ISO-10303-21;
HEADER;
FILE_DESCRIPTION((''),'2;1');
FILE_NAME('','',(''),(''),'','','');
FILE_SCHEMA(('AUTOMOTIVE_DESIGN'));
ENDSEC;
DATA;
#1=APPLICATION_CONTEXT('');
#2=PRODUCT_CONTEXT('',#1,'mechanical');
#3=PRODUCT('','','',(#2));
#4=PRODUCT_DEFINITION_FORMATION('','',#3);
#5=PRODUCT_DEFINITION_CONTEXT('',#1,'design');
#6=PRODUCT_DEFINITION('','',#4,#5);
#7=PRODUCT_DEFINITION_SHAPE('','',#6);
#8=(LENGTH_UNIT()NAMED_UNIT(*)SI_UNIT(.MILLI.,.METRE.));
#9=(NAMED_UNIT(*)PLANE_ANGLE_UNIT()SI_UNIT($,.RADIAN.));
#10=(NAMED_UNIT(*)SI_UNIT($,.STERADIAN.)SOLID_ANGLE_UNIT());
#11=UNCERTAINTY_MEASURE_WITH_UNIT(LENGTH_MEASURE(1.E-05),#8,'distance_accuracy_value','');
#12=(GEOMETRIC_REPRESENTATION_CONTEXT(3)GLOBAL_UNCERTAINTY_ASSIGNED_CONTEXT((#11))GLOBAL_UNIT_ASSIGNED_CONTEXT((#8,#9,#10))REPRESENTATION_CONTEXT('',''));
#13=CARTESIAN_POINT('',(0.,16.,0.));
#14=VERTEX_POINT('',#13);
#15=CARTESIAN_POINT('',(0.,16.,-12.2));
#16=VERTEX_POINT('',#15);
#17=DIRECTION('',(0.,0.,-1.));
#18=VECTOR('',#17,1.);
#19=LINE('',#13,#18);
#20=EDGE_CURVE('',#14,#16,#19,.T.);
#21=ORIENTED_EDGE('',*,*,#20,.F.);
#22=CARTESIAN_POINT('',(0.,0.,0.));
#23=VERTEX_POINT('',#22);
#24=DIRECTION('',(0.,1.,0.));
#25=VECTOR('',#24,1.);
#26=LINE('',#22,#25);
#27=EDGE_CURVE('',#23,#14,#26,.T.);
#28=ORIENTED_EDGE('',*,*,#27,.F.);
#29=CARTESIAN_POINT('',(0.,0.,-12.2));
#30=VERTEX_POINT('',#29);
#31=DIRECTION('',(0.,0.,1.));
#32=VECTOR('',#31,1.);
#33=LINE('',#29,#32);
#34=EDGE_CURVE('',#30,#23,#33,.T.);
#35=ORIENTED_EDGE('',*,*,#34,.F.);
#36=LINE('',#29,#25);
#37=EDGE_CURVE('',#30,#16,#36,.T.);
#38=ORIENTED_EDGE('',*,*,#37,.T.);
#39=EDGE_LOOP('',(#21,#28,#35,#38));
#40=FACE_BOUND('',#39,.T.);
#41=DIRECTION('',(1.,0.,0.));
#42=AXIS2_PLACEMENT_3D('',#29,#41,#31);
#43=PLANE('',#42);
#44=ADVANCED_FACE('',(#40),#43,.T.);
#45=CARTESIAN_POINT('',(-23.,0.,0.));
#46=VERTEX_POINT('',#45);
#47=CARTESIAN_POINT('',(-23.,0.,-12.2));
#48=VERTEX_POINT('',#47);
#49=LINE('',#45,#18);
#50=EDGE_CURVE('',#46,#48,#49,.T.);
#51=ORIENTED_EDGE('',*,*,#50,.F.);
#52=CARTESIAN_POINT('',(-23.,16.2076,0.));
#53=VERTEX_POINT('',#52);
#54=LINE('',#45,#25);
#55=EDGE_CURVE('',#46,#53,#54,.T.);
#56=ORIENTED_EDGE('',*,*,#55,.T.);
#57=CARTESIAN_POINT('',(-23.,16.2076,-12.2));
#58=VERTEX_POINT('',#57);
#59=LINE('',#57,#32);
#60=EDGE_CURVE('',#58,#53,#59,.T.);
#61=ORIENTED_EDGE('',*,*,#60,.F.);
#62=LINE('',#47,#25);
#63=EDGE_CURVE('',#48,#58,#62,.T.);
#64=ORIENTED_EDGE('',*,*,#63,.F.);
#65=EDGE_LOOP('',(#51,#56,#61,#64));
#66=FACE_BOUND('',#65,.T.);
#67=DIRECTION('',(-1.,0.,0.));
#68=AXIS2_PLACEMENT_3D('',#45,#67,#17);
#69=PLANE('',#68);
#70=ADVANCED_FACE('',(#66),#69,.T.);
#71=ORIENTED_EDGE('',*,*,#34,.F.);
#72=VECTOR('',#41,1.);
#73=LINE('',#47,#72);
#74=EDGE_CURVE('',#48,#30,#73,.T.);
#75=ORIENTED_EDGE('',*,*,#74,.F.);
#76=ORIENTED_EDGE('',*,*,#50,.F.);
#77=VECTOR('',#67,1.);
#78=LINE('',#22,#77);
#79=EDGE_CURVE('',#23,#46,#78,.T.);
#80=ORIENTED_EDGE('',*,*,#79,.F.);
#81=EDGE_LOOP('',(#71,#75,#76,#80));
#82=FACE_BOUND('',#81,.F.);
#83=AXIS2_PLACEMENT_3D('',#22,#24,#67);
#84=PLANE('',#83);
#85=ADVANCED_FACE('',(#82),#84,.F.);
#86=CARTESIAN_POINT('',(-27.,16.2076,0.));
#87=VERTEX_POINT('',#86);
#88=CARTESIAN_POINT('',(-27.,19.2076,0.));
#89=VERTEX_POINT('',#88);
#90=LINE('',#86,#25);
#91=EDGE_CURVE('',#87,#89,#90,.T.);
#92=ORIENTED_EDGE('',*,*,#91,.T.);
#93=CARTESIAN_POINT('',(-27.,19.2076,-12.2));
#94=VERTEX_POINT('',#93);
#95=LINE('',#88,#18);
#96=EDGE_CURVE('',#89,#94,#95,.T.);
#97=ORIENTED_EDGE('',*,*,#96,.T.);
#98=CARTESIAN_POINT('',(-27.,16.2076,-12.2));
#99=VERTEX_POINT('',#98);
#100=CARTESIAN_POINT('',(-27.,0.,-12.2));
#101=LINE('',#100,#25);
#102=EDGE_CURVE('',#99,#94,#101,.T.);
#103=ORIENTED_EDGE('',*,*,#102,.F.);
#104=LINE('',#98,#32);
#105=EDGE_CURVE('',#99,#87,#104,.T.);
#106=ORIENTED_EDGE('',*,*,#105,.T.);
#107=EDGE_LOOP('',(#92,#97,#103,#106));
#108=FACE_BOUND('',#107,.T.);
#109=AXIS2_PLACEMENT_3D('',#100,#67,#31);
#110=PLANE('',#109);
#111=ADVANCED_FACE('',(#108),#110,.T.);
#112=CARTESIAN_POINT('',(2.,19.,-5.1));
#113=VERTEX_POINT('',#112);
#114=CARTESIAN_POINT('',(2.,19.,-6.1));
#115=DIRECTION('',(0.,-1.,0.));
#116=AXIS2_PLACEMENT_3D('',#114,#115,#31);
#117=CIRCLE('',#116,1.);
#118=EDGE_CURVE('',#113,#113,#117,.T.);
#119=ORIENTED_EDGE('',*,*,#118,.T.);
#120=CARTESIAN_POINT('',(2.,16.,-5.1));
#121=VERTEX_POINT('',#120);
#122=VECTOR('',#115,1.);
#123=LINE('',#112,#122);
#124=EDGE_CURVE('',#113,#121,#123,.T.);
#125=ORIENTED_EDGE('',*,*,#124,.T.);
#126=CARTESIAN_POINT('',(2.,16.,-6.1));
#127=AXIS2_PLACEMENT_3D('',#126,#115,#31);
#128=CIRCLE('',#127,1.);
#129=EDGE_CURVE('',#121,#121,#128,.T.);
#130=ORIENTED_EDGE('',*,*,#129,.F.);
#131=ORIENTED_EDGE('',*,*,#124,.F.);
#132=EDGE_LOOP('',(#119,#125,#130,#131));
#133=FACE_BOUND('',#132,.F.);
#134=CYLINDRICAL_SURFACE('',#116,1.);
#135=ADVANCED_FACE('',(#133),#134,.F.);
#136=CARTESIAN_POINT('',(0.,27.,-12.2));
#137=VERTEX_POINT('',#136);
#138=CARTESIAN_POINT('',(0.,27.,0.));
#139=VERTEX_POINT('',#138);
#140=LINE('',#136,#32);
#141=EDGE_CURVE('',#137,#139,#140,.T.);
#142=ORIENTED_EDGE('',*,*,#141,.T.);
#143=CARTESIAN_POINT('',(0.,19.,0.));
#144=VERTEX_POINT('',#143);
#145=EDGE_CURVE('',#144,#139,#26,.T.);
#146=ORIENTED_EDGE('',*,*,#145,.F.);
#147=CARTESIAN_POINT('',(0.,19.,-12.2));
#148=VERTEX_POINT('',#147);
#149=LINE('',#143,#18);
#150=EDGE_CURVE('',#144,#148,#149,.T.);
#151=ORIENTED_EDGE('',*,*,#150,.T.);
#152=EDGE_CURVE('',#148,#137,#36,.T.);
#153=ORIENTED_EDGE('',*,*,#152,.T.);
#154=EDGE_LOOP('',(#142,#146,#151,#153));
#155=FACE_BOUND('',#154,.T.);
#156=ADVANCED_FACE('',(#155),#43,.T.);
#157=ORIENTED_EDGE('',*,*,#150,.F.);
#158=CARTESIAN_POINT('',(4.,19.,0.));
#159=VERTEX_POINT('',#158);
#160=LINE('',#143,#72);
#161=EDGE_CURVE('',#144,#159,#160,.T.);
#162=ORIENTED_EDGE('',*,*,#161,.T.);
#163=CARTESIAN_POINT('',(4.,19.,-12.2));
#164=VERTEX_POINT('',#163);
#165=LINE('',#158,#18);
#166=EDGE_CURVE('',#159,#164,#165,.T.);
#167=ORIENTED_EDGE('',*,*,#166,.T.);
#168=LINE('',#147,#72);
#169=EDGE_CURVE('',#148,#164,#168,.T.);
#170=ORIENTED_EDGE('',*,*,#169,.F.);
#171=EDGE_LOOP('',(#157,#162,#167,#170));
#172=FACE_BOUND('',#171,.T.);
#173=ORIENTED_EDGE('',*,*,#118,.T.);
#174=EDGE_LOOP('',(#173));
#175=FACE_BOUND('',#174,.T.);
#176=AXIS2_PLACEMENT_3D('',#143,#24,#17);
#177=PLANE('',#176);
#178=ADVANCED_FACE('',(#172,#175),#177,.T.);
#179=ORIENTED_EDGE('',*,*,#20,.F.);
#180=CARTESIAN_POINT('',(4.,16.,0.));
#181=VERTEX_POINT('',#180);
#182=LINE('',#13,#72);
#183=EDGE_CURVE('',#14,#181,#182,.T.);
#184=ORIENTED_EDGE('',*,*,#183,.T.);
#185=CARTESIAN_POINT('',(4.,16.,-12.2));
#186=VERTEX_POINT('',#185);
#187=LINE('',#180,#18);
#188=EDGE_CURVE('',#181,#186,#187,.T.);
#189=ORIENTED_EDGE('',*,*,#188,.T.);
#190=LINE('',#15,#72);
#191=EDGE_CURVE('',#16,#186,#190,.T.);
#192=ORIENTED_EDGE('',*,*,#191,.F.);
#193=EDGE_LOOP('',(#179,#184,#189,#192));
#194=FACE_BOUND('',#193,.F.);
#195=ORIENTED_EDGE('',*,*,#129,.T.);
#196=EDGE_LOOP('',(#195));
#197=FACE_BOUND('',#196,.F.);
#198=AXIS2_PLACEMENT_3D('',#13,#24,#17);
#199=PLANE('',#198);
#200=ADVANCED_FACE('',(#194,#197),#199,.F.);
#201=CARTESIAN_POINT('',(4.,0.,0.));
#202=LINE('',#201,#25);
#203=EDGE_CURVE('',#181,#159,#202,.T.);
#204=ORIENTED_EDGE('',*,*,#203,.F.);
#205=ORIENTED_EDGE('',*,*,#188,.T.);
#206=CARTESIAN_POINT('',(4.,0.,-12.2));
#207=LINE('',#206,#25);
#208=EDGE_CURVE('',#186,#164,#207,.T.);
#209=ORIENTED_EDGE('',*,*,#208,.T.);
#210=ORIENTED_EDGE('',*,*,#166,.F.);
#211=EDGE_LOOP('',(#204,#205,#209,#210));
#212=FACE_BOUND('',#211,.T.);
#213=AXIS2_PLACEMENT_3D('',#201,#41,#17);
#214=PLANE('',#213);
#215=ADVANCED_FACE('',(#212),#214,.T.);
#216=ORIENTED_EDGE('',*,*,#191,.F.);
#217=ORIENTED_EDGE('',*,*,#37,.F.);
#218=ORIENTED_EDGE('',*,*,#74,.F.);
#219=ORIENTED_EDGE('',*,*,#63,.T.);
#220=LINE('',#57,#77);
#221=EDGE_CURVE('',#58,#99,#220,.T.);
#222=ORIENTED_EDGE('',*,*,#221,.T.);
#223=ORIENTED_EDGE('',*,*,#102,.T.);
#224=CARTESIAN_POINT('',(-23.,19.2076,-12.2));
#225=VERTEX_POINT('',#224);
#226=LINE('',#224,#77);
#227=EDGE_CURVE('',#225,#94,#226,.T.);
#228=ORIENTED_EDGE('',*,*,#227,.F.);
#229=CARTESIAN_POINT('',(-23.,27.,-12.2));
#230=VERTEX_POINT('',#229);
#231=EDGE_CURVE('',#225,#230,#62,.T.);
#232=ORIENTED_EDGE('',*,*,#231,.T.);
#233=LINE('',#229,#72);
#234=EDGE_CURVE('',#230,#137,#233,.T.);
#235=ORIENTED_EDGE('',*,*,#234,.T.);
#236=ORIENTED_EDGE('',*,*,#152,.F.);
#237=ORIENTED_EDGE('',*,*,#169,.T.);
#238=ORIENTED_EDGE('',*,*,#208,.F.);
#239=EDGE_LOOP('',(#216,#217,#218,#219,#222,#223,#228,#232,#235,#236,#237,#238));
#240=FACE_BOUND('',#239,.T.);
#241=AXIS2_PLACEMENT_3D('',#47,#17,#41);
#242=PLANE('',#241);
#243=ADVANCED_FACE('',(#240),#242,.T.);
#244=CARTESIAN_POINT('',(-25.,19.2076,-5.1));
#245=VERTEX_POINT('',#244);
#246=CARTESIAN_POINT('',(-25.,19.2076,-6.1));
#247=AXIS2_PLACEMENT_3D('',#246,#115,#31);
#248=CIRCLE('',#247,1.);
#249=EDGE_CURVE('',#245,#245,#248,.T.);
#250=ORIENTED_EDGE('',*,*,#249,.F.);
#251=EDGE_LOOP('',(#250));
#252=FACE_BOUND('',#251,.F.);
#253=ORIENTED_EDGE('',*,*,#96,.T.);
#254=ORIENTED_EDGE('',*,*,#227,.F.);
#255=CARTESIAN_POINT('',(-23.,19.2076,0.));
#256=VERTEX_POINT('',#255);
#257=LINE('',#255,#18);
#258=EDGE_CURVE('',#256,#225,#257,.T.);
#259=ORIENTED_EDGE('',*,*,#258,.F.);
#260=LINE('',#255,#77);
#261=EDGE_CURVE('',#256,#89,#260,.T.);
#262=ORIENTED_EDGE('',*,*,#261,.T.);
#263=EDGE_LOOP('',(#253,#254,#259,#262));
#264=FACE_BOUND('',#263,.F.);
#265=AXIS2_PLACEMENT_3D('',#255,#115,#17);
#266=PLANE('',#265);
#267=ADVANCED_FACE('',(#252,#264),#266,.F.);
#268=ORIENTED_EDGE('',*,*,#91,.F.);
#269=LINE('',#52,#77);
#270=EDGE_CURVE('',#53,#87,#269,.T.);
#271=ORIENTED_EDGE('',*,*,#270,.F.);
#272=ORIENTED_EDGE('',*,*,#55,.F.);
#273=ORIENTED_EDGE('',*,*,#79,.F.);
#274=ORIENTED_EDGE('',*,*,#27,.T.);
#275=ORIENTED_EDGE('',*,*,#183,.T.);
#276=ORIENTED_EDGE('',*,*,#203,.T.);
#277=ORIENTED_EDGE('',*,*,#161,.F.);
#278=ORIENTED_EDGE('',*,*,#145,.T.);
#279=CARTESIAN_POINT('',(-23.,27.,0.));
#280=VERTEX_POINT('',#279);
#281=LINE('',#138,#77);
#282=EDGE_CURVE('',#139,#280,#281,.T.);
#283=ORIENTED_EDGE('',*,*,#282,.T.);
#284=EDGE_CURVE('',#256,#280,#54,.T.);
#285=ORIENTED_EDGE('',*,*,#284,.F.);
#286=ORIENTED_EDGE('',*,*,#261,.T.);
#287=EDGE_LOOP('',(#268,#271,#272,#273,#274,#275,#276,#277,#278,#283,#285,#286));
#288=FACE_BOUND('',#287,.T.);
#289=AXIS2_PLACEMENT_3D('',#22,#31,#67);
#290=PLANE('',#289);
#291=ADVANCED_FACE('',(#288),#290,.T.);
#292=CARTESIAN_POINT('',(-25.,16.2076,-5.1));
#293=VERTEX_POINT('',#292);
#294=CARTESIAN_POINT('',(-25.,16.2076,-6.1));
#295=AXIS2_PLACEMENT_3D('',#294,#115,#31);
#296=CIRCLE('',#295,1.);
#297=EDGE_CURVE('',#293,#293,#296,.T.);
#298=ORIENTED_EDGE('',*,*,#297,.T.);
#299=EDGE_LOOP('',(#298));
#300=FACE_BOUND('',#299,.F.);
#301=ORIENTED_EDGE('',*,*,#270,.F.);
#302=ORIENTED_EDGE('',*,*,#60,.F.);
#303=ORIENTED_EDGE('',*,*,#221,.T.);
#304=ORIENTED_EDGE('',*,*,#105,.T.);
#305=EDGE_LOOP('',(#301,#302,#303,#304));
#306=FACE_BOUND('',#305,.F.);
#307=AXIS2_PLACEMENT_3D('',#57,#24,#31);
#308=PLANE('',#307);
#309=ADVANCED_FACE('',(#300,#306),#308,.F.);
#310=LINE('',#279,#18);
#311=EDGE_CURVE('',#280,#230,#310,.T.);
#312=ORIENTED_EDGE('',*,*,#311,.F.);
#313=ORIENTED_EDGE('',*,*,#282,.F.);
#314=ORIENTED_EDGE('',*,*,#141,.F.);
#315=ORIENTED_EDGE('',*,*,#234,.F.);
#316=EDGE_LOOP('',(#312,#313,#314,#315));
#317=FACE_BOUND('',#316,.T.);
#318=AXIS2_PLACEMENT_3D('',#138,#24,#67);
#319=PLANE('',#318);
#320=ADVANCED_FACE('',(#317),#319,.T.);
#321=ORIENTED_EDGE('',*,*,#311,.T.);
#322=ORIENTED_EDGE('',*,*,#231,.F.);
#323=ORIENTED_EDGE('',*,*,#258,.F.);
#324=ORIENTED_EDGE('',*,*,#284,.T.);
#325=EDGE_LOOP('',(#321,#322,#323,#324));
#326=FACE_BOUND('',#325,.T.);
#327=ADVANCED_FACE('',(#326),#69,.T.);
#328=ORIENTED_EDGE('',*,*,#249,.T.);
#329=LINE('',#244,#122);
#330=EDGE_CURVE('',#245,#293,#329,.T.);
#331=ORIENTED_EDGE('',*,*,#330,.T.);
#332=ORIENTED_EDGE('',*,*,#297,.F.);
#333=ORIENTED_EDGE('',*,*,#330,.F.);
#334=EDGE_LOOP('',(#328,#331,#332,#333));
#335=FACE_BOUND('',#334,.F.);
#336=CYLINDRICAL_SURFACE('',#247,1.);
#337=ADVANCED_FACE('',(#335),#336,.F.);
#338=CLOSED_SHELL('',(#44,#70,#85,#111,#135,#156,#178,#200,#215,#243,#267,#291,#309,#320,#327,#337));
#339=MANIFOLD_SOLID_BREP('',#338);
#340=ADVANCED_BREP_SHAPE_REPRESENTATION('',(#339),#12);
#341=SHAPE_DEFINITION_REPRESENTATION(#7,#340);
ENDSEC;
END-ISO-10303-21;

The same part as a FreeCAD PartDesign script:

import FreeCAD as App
import Part
import Sketcher

V = App.Vector

doc = App.newDocument("Part")
body = doc.addObject("PartDesign::Body", "Body")

sketch1 = body.newObject("Sketcher::SketchObject", "Sketch")
sketch1.AttachmentSupport = (doc.getObject("XZ_Plane"), [""])
sketch1.MapMode = "FlatFace"
sketch1.addGeometry([
    Part.LineSegment(V(-23, 0, 0), V(0, 0, 0)),
    Part.LineSegment(V(0, 0, 0), V(0, -12, 0)),
    Part.LineSegment(V(0, -12, 0), V(-23, -12, 0)),
    Part.LineSegment(V(-23, -12, 0), V(-23, 0, 0)),
], False)
sketch1.addConstraint([
    Sketcher.Constraint("Coincident", 0, 2, 1, 1),
    Sketcher.Constraint("Coincident", 1, 2, 2, 1),
    Sketcher.Constraint("Coincident", 2, 2, 3, 1),
    Sketcher.Constraint("Coincident", 3, 2, 0, 1),
    Sketcher.Constraint("Horizontal", 0),
    Sketcher.Constraint("Vertical", 1),
    Sketcher.Constraint("Horizontal", 2),
    Sketcher.Constraint("Vertical", 3),
    Sketcher.Constraint("Coincident", 0, 2, -1, 1),
    Sketcher.Constraint("DistanceX", 0, 1, 0, 2, 23.0),
    Sketcher.Constraint("DistanceY", 1, 2, 1, 1, 12.2),
])
pad1 = body.newObject("PartDesign::Pad", "Pad")
pad1.Profile = sketch1
pad1.Length = 27
pad1.Reversed = True

sketch2 = body.newObject("Sketcher::SketchObject", "Sketch001")
sketch2.AttachmentSupport = (doc.getObject("YZ_Plane"), [""])
sketch2.MapMode = "FlatFace"
sketch2.addGeometry([
    Part.LineSegment(V(19, 0, 0), V(16, 0, 0)),
    Part.LineSegment(V(16, 0, 0), V(16, -12.2, 0)),
    Part.LineSegment(V(16, -12.2, 0), V(19, -12.2, 0)),
    Part.LineSegment(V(19, -12.2, 0), V(19, 0, 0)),
], False)
sketch2.addConstraint([
    Sketcher.Constraint("Coincident", 0, 2, 1, 1),
    Sketcher.Constraint("Coincident", 1, 2, 2, 1),
    Sketcher.Constraint("Coincident", 2, 2, 3, 1),
    Sketcher.Constraint("Coincident", 3, 2, 0, 1),
    Sketcher.Constraint("Horizontal", 0),
    Sketcher.Constraint("Vertical", 1),
    Sketcher.Constraint("Horizontal", 2),
    Sketcher.Constraint("Vertical", 3),
    Sketcher.Constraint("PointOnObject", 0, 2, -1),
    Sketcher.Constraint("DistanceX", 0, 2, 0, 1, 3.0),
    Sketcher.Constraint("DistanceX", -1, 1, 0, 2, 16.0),
    Sketcher.Constraint("DistanceY", 1, 2, 1, 1, 12.2),
])
pad2 = body.newObject("PartDesign::Pad", "Pad001")
pad2.Profile = sketch2
pad2.Length = 4

sketch3 = body.newObject("Sketcher::SketchObject", "Sketch002")
sketch3.AttachmentSupport = (doc.getObject("YZ_Plane"), [""])
sketch3.MapMode = "FlatFace"
sketch3.AttachmentOffset = App.Placement(V(0, 0, -23), App.Rotation())
sketch3.addGeometry([
    Part.LineSegment(V(19.2, -12.2, 0), V(16.2, -12.2, 0)),
    Part.LineSegment(V(16.2, -12.2, 0), V(16.2, 0, 0)),
    Part.LineSegment(V(16.2, 0, 0), V(19.2, 0, 0)),
    Part.LineSegment(V(19.2, 0, 0), V(19.2, -12.2, 0)),
], False)
sketch3.addConstraint([
    Sketcher.Constraint("Coincident", 0, 2, 1, 1),
    Sketcher.Constraint("Coincident", 1, 2, 2, 1),
    Sketcher.Constraint("Coincident", 2, 2, 3, 1),
    Sketcher.Constraint("Coincident", 3, 2, 0, 1),
    Sketcher.Constraint("Horizontal", 0),
    Sketcher.Constraint("Vertical", 1),
    Sketcher.Constraint("Horizontal", 2),
    Sketcher.Constraint("Vertical", 3),
    Sketcher.Constraint("PointOnObject", 1, 2, -1),
    Sketcher.Constraint("DistanceX", 0, 2, 0, 1, 3.0),
    Sketcher.Constraint("DistanceY", 1, 1, 1, 2, 12.2),
    Sketcher.Constraint("DistanceX", -1, 1, 0, 2, 16.2076),
])
pad3 = body.newObject("PartDesign::Pad", "Pad002")
pad3.Profile = sketch3
pad3.Length = 4
pad3.Reversed = True

sketch4 = body.newObject("Sketcher::SketchObject", "Sketch003")
sketch4.AttachmentSupport = (doc.getObject("XZ_Plane"), [""])
sketch4.MapMode = "FlatFace"
sketch4.AttachmentOffset = App.Placement(V(0, 0, -19.2076), App.Rotation())
sketch4.addGeometry(Part.Circle(V(-25, -6.1, 0), V(0, 0, 1), 1), False)
sketch4.addConstraint([
    Sketcher.Constraint("Diameter", 0, 2.0),
    Sketcher.Constraint("DistanceX", 0, 3, -1, 1, 25.0),
    Sketcher.Constraint("DistanceY", 0, 3, -1, 1, 6.1),
])
doc.recompute()
hole = body.newObject("PartDesign::Hole", "Hole")
hole.Profile = sketch4
hole.ThreadType = "None"
hole.Diameter = 2
hole.DepthType = "ThroughAll"
hole.Reversed = True

sketch5 = body.newObject("Sketcher::SketchObject", "Sketch004")
sketch5.AttachmentSupport = (doc.getObject("XZ_Plane"), [""])
sketch5.MapMode = "FlatFace"
sketch5.AttachmentOffset = App.Placement(V(0, 0, -19), App.Rotation())
sketch5.addGeometry(Part.Circle(V(2, -6.1, 0), V(0, 0, 1), 1), False)
sketch5.addConstraint([
    Sketcher.Constraint("Diameter", 0, 2.0),
    Sketcher.Constraint("DistanceX", -1, 1, 0, 3, 2.0),
    Sketcher.Constraint("DistanceY", 0, 3, -1, 1, 6.1),
])
doc.recompute()
hole2 = body.newObject("PartDesign::Hole", "Hole001")
hole2.Profile = sketch5
hole2.ThreadType = "None"
hole2.Diameter = 2
hole2.DepthType = "ThroughAll"
hole2.Reversed = True

doc.recompute()
